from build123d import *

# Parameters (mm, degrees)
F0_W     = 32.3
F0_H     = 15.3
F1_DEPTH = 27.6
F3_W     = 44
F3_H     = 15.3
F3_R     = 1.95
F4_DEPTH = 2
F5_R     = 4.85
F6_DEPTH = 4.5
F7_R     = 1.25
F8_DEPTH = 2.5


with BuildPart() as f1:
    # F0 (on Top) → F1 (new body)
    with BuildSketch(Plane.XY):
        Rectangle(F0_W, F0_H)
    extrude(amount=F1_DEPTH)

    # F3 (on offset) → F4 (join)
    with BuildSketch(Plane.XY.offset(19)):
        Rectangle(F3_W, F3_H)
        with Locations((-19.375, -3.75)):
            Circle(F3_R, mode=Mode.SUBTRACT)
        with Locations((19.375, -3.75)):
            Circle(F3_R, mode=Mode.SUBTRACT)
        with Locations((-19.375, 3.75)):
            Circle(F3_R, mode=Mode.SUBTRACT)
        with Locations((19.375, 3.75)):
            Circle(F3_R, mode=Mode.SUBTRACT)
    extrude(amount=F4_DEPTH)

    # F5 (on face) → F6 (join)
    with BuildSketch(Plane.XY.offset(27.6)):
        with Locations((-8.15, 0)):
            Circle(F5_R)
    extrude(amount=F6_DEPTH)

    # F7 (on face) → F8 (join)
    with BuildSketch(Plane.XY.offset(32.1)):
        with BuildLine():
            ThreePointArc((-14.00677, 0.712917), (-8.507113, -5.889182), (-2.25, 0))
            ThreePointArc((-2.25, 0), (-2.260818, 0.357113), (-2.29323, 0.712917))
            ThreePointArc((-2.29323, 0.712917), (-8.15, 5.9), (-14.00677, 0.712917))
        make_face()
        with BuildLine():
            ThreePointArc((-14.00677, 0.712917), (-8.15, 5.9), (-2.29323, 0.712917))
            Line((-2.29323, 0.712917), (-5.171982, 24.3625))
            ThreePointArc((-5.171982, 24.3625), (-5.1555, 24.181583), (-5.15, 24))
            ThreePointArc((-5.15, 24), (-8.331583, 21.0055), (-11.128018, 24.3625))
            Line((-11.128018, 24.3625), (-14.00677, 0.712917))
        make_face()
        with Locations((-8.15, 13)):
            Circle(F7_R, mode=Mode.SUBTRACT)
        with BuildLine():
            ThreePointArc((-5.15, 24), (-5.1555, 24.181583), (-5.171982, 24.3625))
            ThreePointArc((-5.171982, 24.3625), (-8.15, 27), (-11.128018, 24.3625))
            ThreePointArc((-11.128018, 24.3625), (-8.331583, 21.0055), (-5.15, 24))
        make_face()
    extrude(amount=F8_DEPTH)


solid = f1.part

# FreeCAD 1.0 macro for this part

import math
import FreeCAD as App
import Part
import Sketcher

V = App.Vector
Q = App.Units.Quantity


def add_polygon(sketch, points):
    """Adds a closed chain of lines whose ends are joined by coincident constraints."""
    first, n = sketch.GeometryCount, len(points)
    for a, b in zip(points, points[1:] + points[:1]):
        sketch.addGeometry(Part.LineSegment(App.Vector(*a, 0), App.Vector(*b, 0)), False)
    for i in range(n):
        sketch.addConstraint(Sketcher.Constraint("Coincident", first + i, 2, first + (i + 1) % n, 1))

doc = App.newDocument("Part")
body = doc.addObject("PartDesign::Body", "Body")

sketch1 = body.newObject("Sketcher::SketchObject", "Sketch")
sketch1.AttachmentSupport = (doc.getObject("XY_Plane"), [""])
sketch1.MapMode = "FlatFace"
add_polygon(sketch1, [(-16, 8), (-16, -8), (16, -8), (16, 8)])
sketch1.addConstraint([
    Sketcher.Constraint("Vertical", 0),
    Sketcher.Constraint("Horizontal", 1),
    Sketcher.Constraint("Vertical", 2),
    Sketcher.Constraint("Horizontal", 3),
    Sketcher.Constraint("Symmetric", 0, 2, 2, 2, -1, 1),
    Sketcher.Constraint("DistanceX", 1, 1, 1, 2, Q("32.3 mm")),
    Sketcher.Constraint("DistanceY", 0, 2, 0, 1, Q("15.3 mm")),
])
pad1 = body.newObject("PartDesign::Pad", "Pad")
pad1.Profile = sketch1
pad1.Length = 27.6

sketch2 = body.newObject("Sketcher::SketchObject", "Sketch001")
sketch2.AttachmentSupport = (doc.getObject("XY_Plane"), [""])
sketch2.MapMode = "FlatFace"
sketch2.AttachmentOffset = App.Placement(V(0, 0, 19), App.Rotation())
add_polygon(sketch2, [(-22, 7.7), (-22, -7.7), (22, -7.7), (22, 7.7)])
sketch2.addGeometry(Part.Circle(V(-19.4, -3.8, 0), V(0, 0, 1), 1.9), False)
sketch2.addGeometry(Part.Circle(V(19.4, -3.8, 0), V(0, 0, 1), 1.9), False)
sketch2.addGeometry(Part.Circle(V(-19.4, 3.8, 0), V(0, 0, 1), 1.9), False)
sketch2.addGeometry(Part.Circle(V(19.4, 3.8, 0), V(0, 0, 1), 1.9), False)
sketch2.addConstraint([
    Sketcher.Constraint("Vertical", 0),
    Sketcher.Constraint("Horizontal", 1),
    Sketcher.Constraint("Vertical", 2),
    Sketcher.Constraint("Horizontal", 3),
    Sketcher.Constraint("Equal", 4, 5),
    Sketcher.Constraint("Equal", 5, 6),
    Sketcher.Constraint("Equal", 6, 7),
    Sketcher.Constraint("Symmetric", 5, 3, 6, 3, -1, 1),
    Sketcher.Constraint("Symmetric", 4, 3, 7, 3, -1, 1),
    Sketcher.Constraint("Symmetric", 0, 2, 2, 2, -1, 1),
    Sketcher.Constraint("Symmetric", 4, 3, 5, 3, -2),
    Sketcher.Constraint("Diameter", 4, Q("3.9 mm")),
    Sketcher.Constraint("DistanceX", 1, 1, 1, 2, Q("44 mm")),
    Sketcher.Constraint("DistanceY", 0, 2, 0, 1, Q("15.3 mm")),
    Sketcher.Constraint("DistanceY", 4, 3, 6, 3, Q("7.5 mm")),
    Sketcher.Constraint("DistanceX", 4, 3, 5, 3, Q("38.75 mm")),
])
pad2 = body.newObject("PartDesign::Pad", "Pad001")
pad2.Profile = sketch2
pad2.Length = 2

sketch3 = body.newObject("Sketcher::SketchObject", "Sketch002")
sketch3.AttachmentSupport = (doc.getObject("XY_Plane"), [""])
sketch3.MapMode = "FlatFace"
sketch3.AttachmentOffset = App.Placement(V(0, 0, 27.6), App.Rotation())
sketch3.addGeometry(Part.Circle(V(-8.2, 0, 0), V(0, 0, 1), 4.8), False)
sketch3.addConstraint([
    Sketcher.Constraint("PointOnObject", 0, 3, -1),
    Sketcher.Constraint("Diameter", 0, Q("9.7 mm")),
    Sketcher.Constraint("DistanceX", 0, 3, -1, 1, Q("8.15 mm")),
])
pad3 = body.newObject("PartDesign::Pad", "Pad002")
pad3.Profile = sketch3
pad3.Length = 4.5

sketch4 = body.newObject("Sketcher::SketchObject", "Sketch003")
sketch4.AttachmentSupport = (doc.getObject("XY_Plane"), [""])
sketch4.MapMode = "FlatFace"
sketch4.AttachmentOffset = App.Placement(V(0, 0, 32.1), App.Rotation())
sketch4.addGeometry([
    Part.ArcOfCircle(Part.Circle(V(-8.2, 0, 0), V(0, 0, 1), 5.9), math.radians(173), math.radians(360)),
    Part.ArcOfCircle(Part.Circle(V(-8.2, 0, 0), V(0, 0, 1), 5.9), math.radians(0), math.radians(6.94)),
    Part.LineSegment(V(-2.3, 0.7, 0), V(-5.2, 24.4, 0)),
    Part.ArcOfCircle(Part.Circle(V(-8.2, 24, 0), V(0, 0, 1), 3), math.radians(7), math.radians(173)),
    Part.LineSegment(V(-11.1, 24.4, 0), V(-14, 0.7, 0)),
    Part.Circle(V(-8.2, 13, 0), V(0, 0, 1), 1.2),
], False)
sketch4.addConstraint([
    Sketcher.Constraint("Coincident", 0, 2, 1, 1),
    Sketcher.Constraint("Coincident", 1, 2, 2, 1),
    Sketcher.Constraint("Tangent", 2, 2, 3, 1),
    Sketcher.Constraint("Tangent", 3, 2, 4, 1),
    Sketcher.Constraint("Tangent", 4, 2, 0, 1),
    Sketcher.Constraint("PointOnObject", 0, 3, -1),
    Sketcher.Constraint("PointOnObject", 0, 2, -1),
    Sketcher.Constraint("Horizontal", 2, 2, 3, 2),
    Sketcher.Constraint("Horizontal", 1, 2, 4, 2),
    Sketcher.Constraint("Vertical", 0, 3, 3, 3),
    Sketcher.Constraint("Vertical", 3, 3, 5, 3),
    Sketcher.Constraint("Radius", 3, Q("3 mm")),
    Sketcher.Constraint("Diameter", 5, Q("2.5 mm")),
    Sketcher.Constraint("Radius", 0, Q("5.9 mm")),
    Sketcher.Constraint("DistanceY", -1, 1, 3, 3, Q("24 mm")),
    Sketcher.Constraint("DistanceY", -1, 1, 5, 3, Q("13 mm")),
    Sketcher.Constraint("DistanceX", 0, 3, -1, 1, Q("8.15 mm")),
    Sketcher.Constraint("Radius", 1, Q("5.900389 mm")),
])
pad4 = body.newObject("PartDesign::Pad", "Pad003")
pad4.Profile = sketch4
pad4.Length = 2.5

doc.recompute()
